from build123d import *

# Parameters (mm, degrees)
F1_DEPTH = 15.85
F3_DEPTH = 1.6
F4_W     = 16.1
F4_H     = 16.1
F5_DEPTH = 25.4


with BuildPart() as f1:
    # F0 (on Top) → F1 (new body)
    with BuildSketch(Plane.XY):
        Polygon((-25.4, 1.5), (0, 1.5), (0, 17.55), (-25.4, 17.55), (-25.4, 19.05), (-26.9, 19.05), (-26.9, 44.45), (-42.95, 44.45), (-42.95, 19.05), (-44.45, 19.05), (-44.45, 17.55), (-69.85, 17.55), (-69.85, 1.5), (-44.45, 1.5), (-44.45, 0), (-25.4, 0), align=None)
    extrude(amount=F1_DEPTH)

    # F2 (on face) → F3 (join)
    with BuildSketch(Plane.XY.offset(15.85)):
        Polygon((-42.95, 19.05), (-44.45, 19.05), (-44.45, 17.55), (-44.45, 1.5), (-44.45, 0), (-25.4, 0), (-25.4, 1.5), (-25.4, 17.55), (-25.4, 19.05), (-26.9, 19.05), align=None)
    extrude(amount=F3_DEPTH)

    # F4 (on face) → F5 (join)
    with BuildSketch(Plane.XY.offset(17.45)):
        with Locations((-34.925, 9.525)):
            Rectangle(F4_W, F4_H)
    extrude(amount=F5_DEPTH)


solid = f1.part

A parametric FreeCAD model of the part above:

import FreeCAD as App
import Part
import Sketcher
from FreeCAD import Vector

doc = App.newDocument("Part")
params = doc.addObject("Spreadsheet::Sheet", "Params")
for row, (alias, value) in enumerate([
    ("sketch1_width", "25.4 mm"),
    ("sketch1_width2", "1.5 mm"),
    ("sketch1_width3", "16.05 mm"),
    ("pad1_length", "15.85 mm"),
    ("sketch2_width", "19.05 mm"),
    ("pad2_length", "1.6 mm"),
    ("sketch3_width", "16.1 mm"),
    ("pad3_length", "25.4 mm"),
], start=1):
    params.set(f"A{row}", alias)
    params.set(f"B{row}", "=" + value)
    params.setAlias(f"B{row}", alias)

body = doc.addObject("PartDesign::Body", "Body")

sketch1 = body.newObject("Sketcher::SketchObject", "Sketch")
sketch1.AttachmentSupport = (doc.getObject("XY_Plane"), [""])
sketch1.MapMode = "FlatFace"
sketch1.addGeometry([
    Part.LineSegment(Vector(-25.4, 1.5, 0), Vector(0, 1.5, 0)),
    Part.LineSegment(Vector(0, 1.5, 0), Vector(0, 17.6, 0)),
    Part.LineSegment(Vector(0, 17.6, 0), Vector(-25.4, 17.6, 0)),
    Part.LineSegment(Vector(-25.4, 17.6, 0), Vector(-25.4, 19.1, 0)),
    Part.LineSegment(Vector(-25.4, 19.1, 0), Vector(-26.9, 19.1, 0)),
    Part.LineSegment(Vector(-26.9, 19.1, 0), Vector(-26.9, 44.5, 0)),
    Part.LineSegment(Vector(-26.9, 44.5, 0), Vector(-43, 44.5, 0)),
    Part.LineSegment(Vector(-43, 44.5, 0), Vector(-43, 19.1, 0)),
    Part.LineSegment(Vector(-43, 19.1, 0), Vector(-44.5, 19.1, 0)),
    Part.LineSegment(Vector(-44.5, 19.1, 0), Vector(-44.5, 17.6, 0)),
    Part.LineSegment(Vector(-44.5, 17.6, 0), Vector(-69.8, 17.6, 0)),
    Part.LineSegment(Vector(-69.8, 17.6, 0), Vector(-69.8, 1.5, 0)),
    Part.LineSegment(Vector(-69.8, 1.5, 0), Vector(-44.5, 1.5, 0)),
    Part.LineSegment(Vector(-44.5, 1.5, 0), Vector(-44.5, 0, 0)),
    Part.LineSegment(Vector(-44.5, 0, 0), Vector(-25.4, 0, 0)),
    Part.LineSegment(Vector(-25.4, 0, 0), Vector(-25.4, 1.5, 0)),
], False)
sketch1.addConstraint([
    Sketcher.Constraint("Coincident", 0, 2, 1, 1),
    Sketcher.Constraint("Coincident", 1, 2, 2, 1),
    Sketcher.Constraint("Coincident", 2, 2, 3, 1),
    Sketcher.Constraint("Coincident", 3, 2, 4, 1),
    Sketcher.Constraint("Coincident", 4, 2, 5, 1),
    Sketcher.Constraint("Coincident", 5, 2, 6, 1),
    Sketcher.Constraint("Coincident", 6, 2, 7, 1),
    Sketcher.Constraint("Coincident", 7, 2, 8, 1),
    Sketcher.Constraint("Coincident", 8, 2, 9, 1),
    Sketcher.Constraint("Coincident", 9, 2, 10, 1),
    Sketcher.Constraint("Coincident", 10, 2, 11, 1),
    Sketcher.Constraint("Coincident", 11, 2, 12, 1),
    Sketcher.Constraint("Coincident", 12, 2, 13, 1),
    Sketcher.Constraint("Coincident", 13, 2, 14, 1),
    Sketcher.Constraint("Coincident", 14, 2, 15, 1),
    Sketcher.Constraint("Coincident", 15, 2, 0, 1),
    Sketcher.Constraint("Horizontal", 0),
    Sketcher.Constraint("Vertical", 1),
    Sketcher.Constraint("Horizontal", 2),
    Sketcher.Constraint("Vertical", 3),
    Sketcher.Constraint("Horizontal", 4),
    Sketcher.Constraint("Vertical", 5),
    Sketcher.Constraint("Horizontal", 6),
    Sketcher.Constraint("Vertical", 7),
    Sketcher.Constraint("Horizontal", 8),
    Sketcher.Constraint("Vertical", 9),
    Sketcher.Constraint("Horizontal", 10),
    Sketcher.Constraint("Vertical", 11),
    Sketcher.Constraint("Horizontal", 12),
    Sketcher.Constraint("Vertical", 13),
    Sketcher.Constraint("Horizontal", 14),
    Sketcher.Constraint("Vertical", 15),
    Sketcher.Constraint("PointOnObject", 0, 2, -2),
    Sketcher.Constraint("PointOnObject", 13, 2, -1),
    Sketcher.Constraint("Horizontal", 4, 2, 7, 2),
    Sketcher.Constraint("Horizontal", 2, 2, 9, 2),
    Sketcher.Constraint("Horizontal", 0, 2, 11, 2),
    Sketcher.Constraint("Vertical", 9, 2, 12, 2),
    Sketcher.Constraint("Vertical", 3, 2, 14, 2),
    Sketcher.Constraint("Equal", 4, 8),
    Sketcher.Constraint("Equal", 2, 10),
    Sketcher.Constraint("Equal", 6, 1),
    Sketcher.Constraint("Equal", 8, 3),
    Sketcher.Constraint("Equal", 12, 5),
    Sketcher.Constraint("Equal", 9, 13),
    Sketcher.Constraint("DistanceX", 0, 1, 0, 2, 25.4),
    Sketcher.Constraint("DistanceX", 4, 2, 4, 1, 1.5),
    Sketcher.Constraint("DistanceX", 6, 2, 6, 1, 16.05),
])
sketch1.setExpression("Constraints[45]", "Params.sketch1_width")
sketch1.setExpression("Constraints[46]", "Params.sketch1_width2")
sketch1.setExpression("Constraints[47]", "Params.sketch1_width3")
pad1 = body.newObject("PartDesign::Pad", "Pad")
pad1.Profile = sketch1
pad1.setExpression("Length", "Params.pad1_length")

sketch2 = body.newObject("Sketcher::SketchObject", "Sketch001")
sketch2.AttachmentSupport = (doc.getObject("XY_Plane"), [""])
sketch2.MapMode = "FlatFace"
sketch2.AttachmentOffset = App.Placement(Vector(0, 0, 15.85), App.Rotation())
sketch2.addGeometry([
    Part.LineSegment(Vector(-44, 19, 0), Vector(-44, 0, 0)),
    Part.LineSegment(Vector(-44, 0, 0), Vector(-25, 0, 0)),
    Part.LineSegment(Vector(-25, 0, 0), Vector(-25, 19, 0)),
    Part.LineSegment(Vector(-25, 19, 0), Vector(-44, 19, 0)),
], False)
sketch2.addConstraint([
    Sketcher.Constraint("Coincident", 0, 2, 1, 1),
    Sketcher.Constraint("Coincident", 1, 2, 2, 1),
    Sketcher.Constraint("Coincident", 2, 2, 3, 1),
    Sketcher.Constraint("Coincident", 3, 2, 0, 1),
    Sketcher.Constraint("Vertical", 0),
    Sketcher.Constraint("Horizontal", 1),
    Sketcher.Constraint("Vertical", 2),
    Sketcher.Constraint("Horizontal", 3),
    Sketcher.Constraint("PointOnObject", 0, 2, -1),
    Sketcher.Constraint("Equal", 3, 0),
    Sketcher.Constraint("DistanceX", 1, 1, 1, 2, 19.05),
    Sketcher.Constraint("DistanceX", 1, 2, -1, 1, 25.4),
])
sketch2.setExpression("Constraints[10]", "Params.sketch2_width")
pad2 = body.newObject("PartDesign::Pad", "Pad001")
pad2.Profile = sketch2
pad2.setExpression("Length", "Params.pad2_length")

sketch3 = body.newObject("Sketcher::SketchObject", "Sketch002")
sketch3.AttachmentSupport = (doc.getObject("XY_Plane"), [""])
sketch3.MapMode = "FlatFace"
sketch3.AttachmentOffset = App.Placement(Vector(0, 0, 17.45), App.Rotation())
sketch3.addGeometry([
    Part.LineSegment(Vector(-43, 18, 0), Vector(-43, 1, 0)),
    Part.LineSegment(Vector(-43, 1, 0), Vector(-27, 1, 0)),
    Part.LineSegment(Vector(-27, 1, 0), Vector(-27, 18, 0)),
    Part.LineSegment(Vector(-27, 18, 0), Vector(-43, 18, 0)),
], False)
sketch3.addConstraint([
    Sketcher.Constraint("Coincident", 0, 2, 1, 1),
    Sketcher.Constraint("Coincident", 1, 2, 2, 1),
    Sketcher.Constraint("Coincident", 2, 2, 3, 1),
    Sketcher.Constraint("Coincident", 3, 2, 0, 1),
    Sketcher.Constraint("Vertical", 0),
    Sketcher.Constraint("Horizontal", 1),
    Sketcher.Constraint("Vertical", 2),
    Sketcher.Constraint("Horizontal", 3),
    Sketcher.Constraint("Equal", 3, 0),
    Sketcher.Constraint("DistanceX", 1, 1, 1, 2, 16.1),
    Sketcher.Constraint("DistanceX", 0, 2, -1, 1, 42.975),
    Sketcher.Constraint("DistanceY", -1, 1, 0, 2, 1.475),
])
sketch3.setExpression("Constraints[9]", "Params.sketch3_width")
pad3 = body.newObject("PartDesign::Pad", "Pad002")
pad3.Profile = sketch3
pad3.setExpression("Length", "Params.pad3_length")

doc.recompute()
